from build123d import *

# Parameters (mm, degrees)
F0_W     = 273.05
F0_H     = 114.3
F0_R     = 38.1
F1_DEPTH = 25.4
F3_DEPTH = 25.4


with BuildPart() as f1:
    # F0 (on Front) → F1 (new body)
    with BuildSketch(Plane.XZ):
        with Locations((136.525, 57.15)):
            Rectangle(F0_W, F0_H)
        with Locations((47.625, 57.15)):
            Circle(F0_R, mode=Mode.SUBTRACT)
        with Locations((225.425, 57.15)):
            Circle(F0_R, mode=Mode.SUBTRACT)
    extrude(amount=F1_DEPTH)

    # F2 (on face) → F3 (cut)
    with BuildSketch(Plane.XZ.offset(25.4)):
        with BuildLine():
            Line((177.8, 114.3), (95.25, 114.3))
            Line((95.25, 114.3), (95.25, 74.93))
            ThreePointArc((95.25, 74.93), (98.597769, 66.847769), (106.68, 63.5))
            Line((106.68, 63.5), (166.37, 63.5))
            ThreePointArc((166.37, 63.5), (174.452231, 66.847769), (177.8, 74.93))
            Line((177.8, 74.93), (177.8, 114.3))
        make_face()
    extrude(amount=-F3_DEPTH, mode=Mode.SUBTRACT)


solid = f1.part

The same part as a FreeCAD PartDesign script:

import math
import FreeCAD as App
import Part
import Sketcher
Q = App.Units.Quantity

doc = App.newDocument("Part")
params = doc.addObject("Spreadsheet::Sheet", "Params")
for row, (alias, value) in enumerate([
    ("sketch1_diameter", "3 in"),
    ("sketch1_height", "4.5 in"),
    ("sketch1_width", "10.75 in"),
    ("pad1_length", "1 in"),
    ("sketch2_radius", "0.4499999 in"),
    ("sketch2_width", "3.25 in"),
    ("pocket1_length", "1 in"),
], start=1):
    params.set(f"A{row}", alias)
    params.set(f"B{row}", "=" + value)
    params.setAlias(f"B{row}", alias)

body = doc.addObject("PartDesign::Body", "Body")

sketch1 = doc.addObject("Sketcher::SketchObject", "Sketch")
body.addObject(sketch1)
sketch1.AttachmentSupport = (doc.XZ_Plane, [""])
sketch1.MapMode = "FlatFace"
sketch1.addGeometry([
    Part.LineSegment(App.Vector(0, 114.3, 0), App.Vector(0, 0, 0)),
    Part.LineSegment(App.Vector(0, 0, 0), App.Vector(273.05, 0, 0)),
    Part.LineSegment(App.Vector(273.05, 0, 0), App.Vector(273.05, 114.3, 0)),
    Part.LineSegment(App.Vector(273.05, 114.3, 0), App.Vector(0, 114.3, 0)),
    Part.Circle(App.Vector(47.625, 57.15, 0), App.Vector(0, 0, 1), 38.1),
    Part.Circle(App.Vector(225.425, 57.15, 0), App.Vector(0, 0, 1), 38.1),
], False)
sketch1.addConstraint([
    Sketcher.Constraint("Coincident", 0, 2, 1, 1),
    Sketcher.Constraint("Coincident", 1, 2, 2, 1),
    Sketcher.Constraint("Coincident", 2, 2, 3, 1),
    Sketcher.Constraint("Coincident", 3, 2, 0, 1),
    Sketcher.Constraint("Vertical", 0),
    Sketcher.Constraint("Horizontal", 1),
    Sketcher.Constraint("Vertical", 2),
    Sketcher.Constraint("Horizontal", 3),
    Sketcher.Constraint("Coincident", 0, 2, -1, 1),
    Sketcher.Constraint("Equal", 4, 5),
    Sketcher.Constraint("Horizontal", 4, 3, 5, 3),
    Sketcher.Constraint("Diameter", 4, Q("3 in")),
    Sketcher.Constraint("DistanceY", 0, 2, 0, 1, Q("4.5 in")),
    Sketcher.Constraint("DistanceX", 4, 3, 5, 3, Q("7 in")),
    Sketcher.Constraint("DistanceX", 1, 1, 1, 2, Q("10.75 in")),
    Sketcher.Constraint("DistanceY", -1, 1, 4, 3, Q("2.25 in")),
    Sketcher.Constraint("DistanceX", -1, 1, 4, 3, Q("1.875 in")),
])
sketch1.setExpression("Constraints[11]", "Params.sketch1_diameter")
sketch1.setExpression("Constraints[12]", "Params.sketch1_height")
sketch1.setExpression("Constraints[14]", "Params.sketch1_width")
pad1 = doc.addObject("PartDesign::Pad", "Pad")
body.addObject(pad1)
pad1.Profile = sketch1
pad1.setExpression("Length", "Params.pad1_length")

sketch2 = doc.addObject("Sketcher::SketchObject", "Sketch001")
body.addObject(sketch2)
sketch2.AttachmentSupport = (doc.XZ_Plane, [""])
sketch2.MapMode = "FlatFace"
sketch2.AttachmentOffset = App.Placement(App.Vector(0, 0, 1 * 25.4), App.Rotation())
sketch2.addGeometry([
    Part.LineSegment(App.Vector(177.8, 114.3, 0), App.Vector(95.25, 114.3, 0)),
    Part.LineSegment(App.Vector(95.25, 114.3, 0), App.Vector(95.25, 74.93, 0)),
    Part.ArcOfCircle(Part.Circle(App.Vector(106.679998, 74.929998, 0), App.Vector(0, 0, 1), 11.429998), math.radians(179.999992), math.radians(270.000008)),
    Part.LineSegment(App.Vector(106.68, 63.5, 0), App.Vector(166.37, 63.5, 0)),
    Part.ArcOfCircle(Part.Circle(App.Vector(166.370002, 74.929998, 0), App.Vector(0, 0, 1), 11.429998), math.radians(-90.000008), math.radians(0.000008)),
    Part.LineSegment(App.Vector(177.8, 74.93, 0), App.Vector(177.8, 114.3, 0)),
], False)
sketch2.addConstraint([
    Sketcher.Constraint("Coincident", 0, 2, 1, 1),
    Sketcher.Constraint("Tangent", 1, 2, 2, 1),
    Sketcher.Constraint("Tangent", 2, 2, 3, 1),
    Sketcher.Constraint("Tangent", 3, 2, 4, 1),
    Sketcher.Constraint("Tangent", 4, 2, 5, 1),
    Sketcher.Constraint("Coincident", 5, 2, 0, 1),
    Sketcher.Constraint("Horizontal", 0),
    Sketcher.Constraint("Vertical", 1),
    Sketcher.Constraint("Horizontal", 3),
    Sketcher.Constraint("Vertical", 5),
    Sketcher.Constraint("Equal", 2, 4),
    Sketcher.Constraint("Radius", 2, Q("0.4499999 in")),
    Sketcher.Constraint("DistanceX", -1, 1, 4, 2, Q("7 in")),
    Sketcher.Constraint("DistanceY", 2, 2, 0, 2, Q("2 in")),
    Sketcher.Constraint("DistanceX", 0, 2, 0, 1, Q("3.25 in")),
    Sketcher.Constraint("DistanceY", -1, 1, 0, 2, Q("4.5 in")),
])
sketch2.setExpression("Constraints[11]", "Params.sketch2_radius")
sketch2.setExpression("Constraints[14]", "Params.sketch2_width")
pocket1 = doc.addObject("PartDesign::Pocket", "Pocket")
body.addObject(pocket1)
pocket1.Profile = sketch2
pocket1.setExpression("Length", "Params.pocket1_length")

doc.recompute()
